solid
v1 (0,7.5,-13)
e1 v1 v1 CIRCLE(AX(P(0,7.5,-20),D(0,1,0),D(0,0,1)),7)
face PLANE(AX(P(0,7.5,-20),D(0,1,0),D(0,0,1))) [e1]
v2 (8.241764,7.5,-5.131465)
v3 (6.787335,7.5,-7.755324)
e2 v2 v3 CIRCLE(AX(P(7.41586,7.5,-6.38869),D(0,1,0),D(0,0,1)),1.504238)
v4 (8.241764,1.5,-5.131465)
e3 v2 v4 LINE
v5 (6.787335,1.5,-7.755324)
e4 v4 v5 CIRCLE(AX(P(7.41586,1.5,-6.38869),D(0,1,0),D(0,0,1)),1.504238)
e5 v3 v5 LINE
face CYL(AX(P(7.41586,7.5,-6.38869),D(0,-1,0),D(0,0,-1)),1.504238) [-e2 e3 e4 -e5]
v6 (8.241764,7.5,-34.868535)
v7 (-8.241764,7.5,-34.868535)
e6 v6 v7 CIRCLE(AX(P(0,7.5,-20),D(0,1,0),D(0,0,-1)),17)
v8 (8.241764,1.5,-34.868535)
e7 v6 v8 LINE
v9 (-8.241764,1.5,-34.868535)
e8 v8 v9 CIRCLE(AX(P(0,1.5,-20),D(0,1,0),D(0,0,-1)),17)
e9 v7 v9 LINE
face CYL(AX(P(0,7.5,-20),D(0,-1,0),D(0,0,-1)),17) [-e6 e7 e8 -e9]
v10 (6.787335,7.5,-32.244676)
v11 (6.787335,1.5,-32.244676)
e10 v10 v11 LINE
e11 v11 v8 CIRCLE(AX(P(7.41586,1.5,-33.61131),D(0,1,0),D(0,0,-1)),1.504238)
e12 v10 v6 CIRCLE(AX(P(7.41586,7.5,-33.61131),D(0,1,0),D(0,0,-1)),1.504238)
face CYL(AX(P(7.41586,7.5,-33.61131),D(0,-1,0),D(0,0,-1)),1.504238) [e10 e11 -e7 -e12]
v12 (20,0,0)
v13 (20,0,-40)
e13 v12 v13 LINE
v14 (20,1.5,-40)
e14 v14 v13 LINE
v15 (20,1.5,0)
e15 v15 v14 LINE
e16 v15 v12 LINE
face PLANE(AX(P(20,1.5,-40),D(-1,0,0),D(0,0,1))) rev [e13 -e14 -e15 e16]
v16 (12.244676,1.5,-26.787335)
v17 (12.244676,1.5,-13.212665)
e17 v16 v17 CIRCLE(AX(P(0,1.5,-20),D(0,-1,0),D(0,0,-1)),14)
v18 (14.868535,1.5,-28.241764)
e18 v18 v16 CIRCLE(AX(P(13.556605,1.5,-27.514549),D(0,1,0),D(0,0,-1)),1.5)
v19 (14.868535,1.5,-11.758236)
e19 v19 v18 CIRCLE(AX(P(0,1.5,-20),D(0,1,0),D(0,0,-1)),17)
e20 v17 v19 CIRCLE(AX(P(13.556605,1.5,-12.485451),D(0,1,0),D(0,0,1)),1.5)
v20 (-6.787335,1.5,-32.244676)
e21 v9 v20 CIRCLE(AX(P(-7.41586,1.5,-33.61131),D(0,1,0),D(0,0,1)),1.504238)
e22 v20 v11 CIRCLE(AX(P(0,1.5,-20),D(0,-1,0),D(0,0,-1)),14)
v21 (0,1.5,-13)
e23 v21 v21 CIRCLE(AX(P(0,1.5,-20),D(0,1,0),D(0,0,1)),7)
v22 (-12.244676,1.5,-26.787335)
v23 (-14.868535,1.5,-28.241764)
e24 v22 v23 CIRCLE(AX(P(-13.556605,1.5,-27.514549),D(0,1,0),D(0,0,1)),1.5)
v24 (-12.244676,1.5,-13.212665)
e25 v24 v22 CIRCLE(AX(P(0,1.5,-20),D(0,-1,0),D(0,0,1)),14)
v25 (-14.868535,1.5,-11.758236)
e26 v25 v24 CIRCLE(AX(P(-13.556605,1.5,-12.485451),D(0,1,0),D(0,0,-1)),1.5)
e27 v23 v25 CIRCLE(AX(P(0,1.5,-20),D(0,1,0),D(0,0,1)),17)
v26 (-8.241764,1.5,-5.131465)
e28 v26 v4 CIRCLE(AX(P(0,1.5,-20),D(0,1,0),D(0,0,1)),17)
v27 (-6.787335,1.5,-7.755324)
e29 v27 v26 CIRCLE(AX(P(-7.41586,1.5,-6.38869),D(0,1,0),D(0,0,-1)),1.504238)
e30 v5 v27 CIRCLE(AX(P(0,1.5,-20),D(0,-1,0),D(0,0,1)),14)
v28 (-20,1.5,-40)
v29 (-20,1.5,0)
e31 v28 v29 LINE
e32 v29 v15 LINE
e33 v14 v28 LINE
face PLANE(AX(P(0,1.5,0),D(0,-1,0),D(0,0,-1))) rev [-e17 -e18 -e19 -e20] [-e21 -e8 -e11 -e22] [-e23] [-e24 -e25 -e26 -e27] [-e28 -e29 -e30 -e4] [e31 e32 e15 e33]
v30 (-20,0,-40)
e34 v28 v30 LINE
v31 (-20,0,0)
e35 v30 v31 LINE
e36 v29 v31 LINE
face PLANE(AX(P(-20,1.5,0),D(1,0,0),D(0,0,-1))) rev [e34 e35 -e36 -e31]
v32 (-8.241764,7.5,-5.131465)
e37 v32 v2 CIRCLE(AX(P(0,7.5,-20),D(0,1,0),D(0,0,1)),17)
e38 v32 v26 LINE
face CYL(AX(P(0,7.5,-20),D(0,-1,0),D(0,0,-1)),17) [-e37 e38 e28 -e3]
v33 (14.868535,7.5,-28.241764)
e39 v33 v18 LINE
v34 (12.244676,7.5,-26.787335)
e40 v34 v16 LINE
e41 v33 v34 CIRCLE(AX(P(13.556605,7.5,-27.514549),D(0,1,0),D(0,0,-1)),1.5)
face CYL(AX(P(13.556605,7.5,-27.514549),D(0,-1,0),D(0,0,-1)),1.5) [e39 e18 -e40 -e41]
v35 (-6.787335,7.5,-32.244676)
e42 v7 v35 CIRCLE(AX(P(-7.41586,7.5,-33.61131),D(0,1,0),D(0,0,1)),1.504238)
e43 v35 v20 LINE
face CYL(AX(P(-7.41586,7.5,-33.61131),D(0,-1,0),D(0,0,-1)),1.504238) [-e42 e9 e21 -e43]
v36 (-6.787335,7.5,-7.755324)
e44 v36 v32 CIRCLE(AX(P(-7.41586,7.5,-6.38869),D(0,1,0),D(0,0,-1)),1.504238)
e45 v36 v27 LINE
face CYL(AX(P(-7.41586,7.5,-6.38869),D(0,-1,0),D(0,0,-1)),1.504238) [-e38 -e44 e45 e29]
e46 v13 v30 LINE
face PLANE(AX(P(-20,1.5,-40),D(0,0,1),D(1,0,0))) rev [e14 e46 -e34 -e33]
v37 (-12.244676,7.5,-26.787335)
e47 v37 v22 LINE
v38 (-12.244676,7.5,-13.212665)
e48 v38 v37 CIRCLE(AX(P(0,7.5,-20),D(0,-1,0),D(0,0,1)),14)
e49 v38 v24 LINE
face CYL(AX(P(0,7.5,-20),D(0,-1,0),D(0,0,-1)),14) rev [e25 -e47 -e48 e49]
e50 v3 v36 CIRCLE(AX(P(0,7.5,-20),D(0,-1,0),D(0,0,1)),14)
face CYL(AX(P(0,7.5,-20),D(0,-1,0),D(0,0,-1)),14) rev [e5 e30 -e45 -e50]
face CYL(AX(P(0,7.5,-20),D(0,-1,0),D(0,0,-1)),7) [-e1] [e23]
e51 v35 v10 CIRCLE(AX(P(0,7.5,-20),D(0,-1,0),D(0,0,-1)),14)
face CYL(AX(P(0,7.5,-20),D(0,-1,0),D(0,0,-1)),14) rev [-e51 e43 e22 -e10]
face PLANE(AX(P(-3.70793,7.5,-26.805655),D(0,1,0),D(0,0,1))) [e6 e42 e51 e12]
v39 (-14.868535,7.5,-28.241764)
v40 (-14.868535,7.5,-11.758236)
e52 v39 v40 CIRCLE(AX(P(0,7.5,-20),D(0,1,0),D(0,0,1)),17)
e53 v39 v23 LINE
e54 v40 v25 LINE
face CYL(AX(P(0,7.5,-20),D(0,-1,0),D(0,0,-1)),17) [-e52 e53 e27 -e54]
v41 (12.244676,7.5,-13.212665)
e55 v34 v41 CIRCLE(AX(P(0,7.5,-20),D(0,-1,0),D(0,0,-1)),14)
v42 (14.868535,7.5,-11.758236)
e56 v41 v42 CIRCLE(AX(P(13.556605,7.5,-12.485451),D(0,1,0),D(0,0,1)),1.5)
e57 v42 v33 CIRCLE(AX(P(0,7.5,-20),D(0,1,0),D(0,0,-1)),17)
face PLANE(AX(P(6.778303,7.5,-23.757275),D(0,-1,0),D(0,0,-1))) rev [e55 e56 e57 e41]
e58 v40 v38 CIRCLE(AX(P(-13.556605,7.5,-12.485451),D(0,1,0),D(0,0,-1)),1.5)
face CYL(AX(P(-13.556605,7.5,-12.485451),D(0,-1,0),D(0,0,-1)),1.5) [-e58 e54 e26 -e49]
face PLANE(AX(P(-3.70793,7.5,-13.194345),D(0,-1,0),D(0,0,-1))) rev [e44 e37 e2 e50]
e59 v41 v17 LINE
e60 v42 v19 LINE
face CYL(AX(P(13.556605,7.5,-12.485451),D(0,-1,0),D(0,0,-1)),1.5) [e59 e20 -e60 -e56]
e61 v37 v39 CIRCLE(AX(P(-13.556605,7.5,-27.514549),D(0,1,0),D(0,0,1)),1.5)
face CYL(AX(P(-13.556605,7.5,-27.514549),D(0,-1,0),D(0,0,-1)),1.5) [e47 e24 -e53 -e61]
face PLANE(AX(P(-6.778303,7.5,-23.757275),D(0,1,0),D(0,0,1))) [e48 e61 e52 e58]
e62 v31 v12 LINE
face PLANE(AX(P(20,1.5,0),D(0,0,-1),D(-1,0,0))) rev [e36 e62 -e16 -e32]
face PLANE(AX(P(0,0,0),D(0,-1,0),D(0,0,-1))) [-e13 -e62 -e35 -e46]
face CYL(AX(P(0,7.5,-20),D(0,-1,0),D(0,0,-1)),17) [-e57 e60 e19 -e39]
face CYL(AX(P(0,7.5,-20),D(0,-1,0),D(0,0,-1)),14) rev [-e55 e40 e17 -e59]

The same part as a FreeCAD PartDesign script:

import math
import FreeCAD as App
import Part
import Sketcher

doc = App.newDocument("Part")
body = doc.addObject("PartDesign::Body", "Body")

sketch1 = body.newObject("Sketcher::SketchObject", "Sketch")
sketch1.AttachmentSupport = (doc.getObject("XZ_Plane"), [""])
sketch1.MapMode = "FlatFace"
sketch1.addGeometry([
    Part.LineSegment(App.Vector(-20, -40, 0), App.Vector(-20, 0, 0)),
    Part.LineSegment(App.Vector(-20, 0, 0), App.Vector(20, 0, 0)),
    Part.LineSegment(App.Vector(20, 0, 0), App.Vector(20, -40, 0)),
    Part.LineSegment(App.Vector(20, -40, 0), App.Vector(-20, -40, 0)),
], False)
sketch1.addConstraint([
    Sketcher.Constraint("Coincident", 0, 2, 1, 1),
    Sketcher.Constraint("Coincident", 1, 2, 2, 1),
    Sketcher.Constraint("Coincident", 2, 2, 3, 1),
    Sketcher.Constraint("Coincident", 3, 2, 0, 1),
    Sketcher.Constraint("Vertical", 0),
    Sketcher.Constraint("Horizontal", 1),
    Sketcher.Constraint("Vertical", 2),
    Sketcher.Constraint("Horizontal", 3),
    Sketcher.Constraint("Symmetric", 0, 2, 1, 2, -1, 1),
    Sketcher.Constraint("Equal", 3, 0),
    Sketcher.Constraint("DistanceX", 1, 1, 1, 2, 40.0),
])
pad1 = body.newObject("PartDesign::Pad", "Pad")
pad1.Profile = sketch1
pad1.Length = 1.5
pad1.Reversed = True

sketch2 = body.newObject("Sketcher::SketchObject", "Sketch001")
sketch2.AttachmentSupport = (doc.getObject("XZ_Plane"), [""])
sketch2.MapMode = "FlatFace"
sketch2.AttachmentOffset = App.Placement(App.Vector(0, 0, -1.5), App.Rotation())
sketch2.addGeometry([
    Part.Circle(App.Vector(0, -20, 0), App.Vector(0, 0, 1), 7),
    Part.ArcOfCircle(Part.Circle(App.Vector(0, -20, 0), App.Vector(0, 0, 1), 14), math.radians(-119), math.radians(-61)),
    Part.ArcOfCircle(Part.Circle(App.Vector(7.4, -33.6, 0), App.Vector(0, 0, 1), 1.5), math.radians(-57), math.radians(115)),
    Part.ArcOfCircle(Part.Circle(App.Vector(0, -20, 0), App.Vector(0, 0, 1), 17), math.radians(-119), math.radians(-61)),
    Part.ArcOfCircle(Part.Circle(App.Vector(-7.4, -33.6, 0), App.Vector(0, 0, 1), 1.5), math.radians(65), math.radians(237)),
    Part.ArcOfCircle(Part.Circle(App.Vector(0, -20, 0), App.Vector(0, 0, 1), 17), math.radians(61), math.radians(119)),
    Part.ArcOfCircle(Part.Circle(App.Vector(7.4, -6.4, 0), App.Vector(0, 0, 1), 1.5), math.radians(-115), math.radians(57)),
    Part.ArcOfCircle(Part.Circle(App.Vector(0, -20, 0), App.Vector(0, 0, 1), 14), math.radians(61), math.radians(119)),
    Part.ArcOfCircle(Part.Circle(App.Vector(-7.4, -6.4, 0), App.Vector(0, 0, 1), 1.5), math.radians(123), math.radians(295)),
    Part.ArcOfCircle(Part.Circle(App.Vector(0, -20, 0), App.Vector(0, 0, 1), 14), math.radians(-29), math.radians(29)),
    Part.ArcOfCircle(Part.Circle(App.Vector(13.6, -12.5, 0), App.Vector(0, 0, 1), 1.5), math.radians(29), math.radians(209)),
    Part.ArcOfCircle(Part.Circle(App.Vector(0, -20, 0), App.Vector(0, 0, 1), 17), math.radians(-29), math.radians(29)),
    Part.ArcOfCircle(Part.Circle(App.Vector(13.6, -27.5, 0), App.Vector(0, 0, 1), 1.5), math.radians(151), math.radians(331)),
    Part.ArcOfCircle(Part.Circle(App.Vector(0, -20, 0), App.Vector(0, 0, 1), 14), math.radians(151), math.radians(209)),
    Part.ArcOfCircle(Part.Circle(App.Vector(-13.6, -27.5, 0), App.Vector(0, 0, 1), 1.5), math.radians(-151), math.radians(29)),
    Part.ArcOfCircle(Part.Circle(App.Vector(0, -20, 0), App.Vector(0, 0, 1), 17), math.radians(151), math.radians(209)),
    Part.ArcOfCircle(Part.Circle(App.Vector(-13.6, -12.5, 0), App.Vector(0, 0, 1), 1.5), math.radians(-29), math.radians(151)),
], False)
sketch2.addConstraint([
    Sketcher.Constraint("Coincident", 1, 2, 2, 2),
    Sketcher.Constraint("Coincident", 2, 1, 3, 2),
    Sketcher.Constraint("Coincident", 3, 1, 4, 2),
    Sketcher.Constraint("Coincident", 4, 1, 1, 1),
    Sketcher.Constraint("Coincident", 5, 1, 6, 2),
    Sketcher.Constraint("Coincident", 6, 1, 7, 1),
    Sketcher.Constraint("Coincident", 7, 2, 8, 2),
    Sketcher.Constraint("Coincident", 8, 1, 5, 2),
    Sketcher.Constraint("Tangent", 9, 2, 10, 2),
    Sketcher.Constraint("Tangent", 10, 1, 11, 2),
    Sketcher.Constraint("Tangent", 11, 1, 12, 2),
    Sketcher.Constraint("Tangent", 12, 1, 9, 1),
    Sketcher.Constraint("Tangent", 13, 2, 14, 2),
    Sketcher.Constraint("Tangent", 14, 1, 15, 2),
    Sketcher.Constraint("Tangent", 15, 1, 16, 2),
    Sketcher.Constraint("Tangent", 16, 1, 13, 1),
    Sketcher.Constraint("Coincident", 1, 3, 0, 3),
    Sketcher.Constraint("Coincident", 3, 3, 0, 3),
    Sketcher.Constraint("Coincident", 5, 3, 0, 3),
    Sketcher.Constraint("Coincident", 7, 3, 0, 3),
    Sketcher.Constraint("Coincident", 9, 3, 0, 3),
    Sketcher.Constraint("Coincident", 11, 3, 0, 3),
    Sketcher.Constraint("Coincident", 13, 3, 0, 3),
    Sketcher.Constraint("Coincident", 15, 3, 0, 3),
    Sketcher.Constraint("Equal", 2, 4),
    Sketcher.Constraint("Equal", 3, 5),
    Sketcher.Constraint("Equal", 4, 6),
    Sketcher.Constraint("Equal", 1, 7),
    Sketcher.Constraint("Equal", 6, 8),
    Sketcher.Constraint("Equal", 7, 9),
    Sketcher.Constraint("Equal", 5, 11),
    Sketcher.Constraint("Equal", 9, 13),
    Sketcher.Constraint("Equal", 12, 14),
    Sketcher.Constraint("Symmetric", 2, 3, 4, 3, -2),
    Sketcher.Constraint("Symmetric", 6, 3, 8, 3, -2),
    Sketcher.Constraint("Symmetric", 12, 3, 14, 3, -2),
    Sketcher.Constraint("Horizontal", 10, 3, 16, 3),
    Sketcher.Constraint("Vertical", 2, 3, 6, 3),
    Sketcher.Constraint("Vertical", 10, 3, 12, 3),
    Sketcher.Constraint("Vertical", 2, 1, 5, 1),
    Sketcher.Constraint("Diameter", 0, 14.0),
    Sketcher.Constraint("Radius", 1, 14.0),
    Sketcher.Constraint("Radius", 3, 17.0),
    Sketcher.Constraint("DistanceY", 0, 3, -1, 1, 20.0),
    Sketcher.Constraint("Radius", 2, 1.504238),
    Sketcher.Constraint("DistanceY", 12, 3, 10, 3, 15.029098),
    Sketcher.Constraint("DistanceX", 3, 1, 1, 2, 15.029098),
    Sketcher.Constraint("DistanceY", 9, 2, 5, 1, 8.0812),
])
pad2 = body.newObject("PartDesign::Pad", "Pad001")
pad2.Profile = sketch2
pad2.Length = 6
pad2.Reversed = True

doc.recompute()
